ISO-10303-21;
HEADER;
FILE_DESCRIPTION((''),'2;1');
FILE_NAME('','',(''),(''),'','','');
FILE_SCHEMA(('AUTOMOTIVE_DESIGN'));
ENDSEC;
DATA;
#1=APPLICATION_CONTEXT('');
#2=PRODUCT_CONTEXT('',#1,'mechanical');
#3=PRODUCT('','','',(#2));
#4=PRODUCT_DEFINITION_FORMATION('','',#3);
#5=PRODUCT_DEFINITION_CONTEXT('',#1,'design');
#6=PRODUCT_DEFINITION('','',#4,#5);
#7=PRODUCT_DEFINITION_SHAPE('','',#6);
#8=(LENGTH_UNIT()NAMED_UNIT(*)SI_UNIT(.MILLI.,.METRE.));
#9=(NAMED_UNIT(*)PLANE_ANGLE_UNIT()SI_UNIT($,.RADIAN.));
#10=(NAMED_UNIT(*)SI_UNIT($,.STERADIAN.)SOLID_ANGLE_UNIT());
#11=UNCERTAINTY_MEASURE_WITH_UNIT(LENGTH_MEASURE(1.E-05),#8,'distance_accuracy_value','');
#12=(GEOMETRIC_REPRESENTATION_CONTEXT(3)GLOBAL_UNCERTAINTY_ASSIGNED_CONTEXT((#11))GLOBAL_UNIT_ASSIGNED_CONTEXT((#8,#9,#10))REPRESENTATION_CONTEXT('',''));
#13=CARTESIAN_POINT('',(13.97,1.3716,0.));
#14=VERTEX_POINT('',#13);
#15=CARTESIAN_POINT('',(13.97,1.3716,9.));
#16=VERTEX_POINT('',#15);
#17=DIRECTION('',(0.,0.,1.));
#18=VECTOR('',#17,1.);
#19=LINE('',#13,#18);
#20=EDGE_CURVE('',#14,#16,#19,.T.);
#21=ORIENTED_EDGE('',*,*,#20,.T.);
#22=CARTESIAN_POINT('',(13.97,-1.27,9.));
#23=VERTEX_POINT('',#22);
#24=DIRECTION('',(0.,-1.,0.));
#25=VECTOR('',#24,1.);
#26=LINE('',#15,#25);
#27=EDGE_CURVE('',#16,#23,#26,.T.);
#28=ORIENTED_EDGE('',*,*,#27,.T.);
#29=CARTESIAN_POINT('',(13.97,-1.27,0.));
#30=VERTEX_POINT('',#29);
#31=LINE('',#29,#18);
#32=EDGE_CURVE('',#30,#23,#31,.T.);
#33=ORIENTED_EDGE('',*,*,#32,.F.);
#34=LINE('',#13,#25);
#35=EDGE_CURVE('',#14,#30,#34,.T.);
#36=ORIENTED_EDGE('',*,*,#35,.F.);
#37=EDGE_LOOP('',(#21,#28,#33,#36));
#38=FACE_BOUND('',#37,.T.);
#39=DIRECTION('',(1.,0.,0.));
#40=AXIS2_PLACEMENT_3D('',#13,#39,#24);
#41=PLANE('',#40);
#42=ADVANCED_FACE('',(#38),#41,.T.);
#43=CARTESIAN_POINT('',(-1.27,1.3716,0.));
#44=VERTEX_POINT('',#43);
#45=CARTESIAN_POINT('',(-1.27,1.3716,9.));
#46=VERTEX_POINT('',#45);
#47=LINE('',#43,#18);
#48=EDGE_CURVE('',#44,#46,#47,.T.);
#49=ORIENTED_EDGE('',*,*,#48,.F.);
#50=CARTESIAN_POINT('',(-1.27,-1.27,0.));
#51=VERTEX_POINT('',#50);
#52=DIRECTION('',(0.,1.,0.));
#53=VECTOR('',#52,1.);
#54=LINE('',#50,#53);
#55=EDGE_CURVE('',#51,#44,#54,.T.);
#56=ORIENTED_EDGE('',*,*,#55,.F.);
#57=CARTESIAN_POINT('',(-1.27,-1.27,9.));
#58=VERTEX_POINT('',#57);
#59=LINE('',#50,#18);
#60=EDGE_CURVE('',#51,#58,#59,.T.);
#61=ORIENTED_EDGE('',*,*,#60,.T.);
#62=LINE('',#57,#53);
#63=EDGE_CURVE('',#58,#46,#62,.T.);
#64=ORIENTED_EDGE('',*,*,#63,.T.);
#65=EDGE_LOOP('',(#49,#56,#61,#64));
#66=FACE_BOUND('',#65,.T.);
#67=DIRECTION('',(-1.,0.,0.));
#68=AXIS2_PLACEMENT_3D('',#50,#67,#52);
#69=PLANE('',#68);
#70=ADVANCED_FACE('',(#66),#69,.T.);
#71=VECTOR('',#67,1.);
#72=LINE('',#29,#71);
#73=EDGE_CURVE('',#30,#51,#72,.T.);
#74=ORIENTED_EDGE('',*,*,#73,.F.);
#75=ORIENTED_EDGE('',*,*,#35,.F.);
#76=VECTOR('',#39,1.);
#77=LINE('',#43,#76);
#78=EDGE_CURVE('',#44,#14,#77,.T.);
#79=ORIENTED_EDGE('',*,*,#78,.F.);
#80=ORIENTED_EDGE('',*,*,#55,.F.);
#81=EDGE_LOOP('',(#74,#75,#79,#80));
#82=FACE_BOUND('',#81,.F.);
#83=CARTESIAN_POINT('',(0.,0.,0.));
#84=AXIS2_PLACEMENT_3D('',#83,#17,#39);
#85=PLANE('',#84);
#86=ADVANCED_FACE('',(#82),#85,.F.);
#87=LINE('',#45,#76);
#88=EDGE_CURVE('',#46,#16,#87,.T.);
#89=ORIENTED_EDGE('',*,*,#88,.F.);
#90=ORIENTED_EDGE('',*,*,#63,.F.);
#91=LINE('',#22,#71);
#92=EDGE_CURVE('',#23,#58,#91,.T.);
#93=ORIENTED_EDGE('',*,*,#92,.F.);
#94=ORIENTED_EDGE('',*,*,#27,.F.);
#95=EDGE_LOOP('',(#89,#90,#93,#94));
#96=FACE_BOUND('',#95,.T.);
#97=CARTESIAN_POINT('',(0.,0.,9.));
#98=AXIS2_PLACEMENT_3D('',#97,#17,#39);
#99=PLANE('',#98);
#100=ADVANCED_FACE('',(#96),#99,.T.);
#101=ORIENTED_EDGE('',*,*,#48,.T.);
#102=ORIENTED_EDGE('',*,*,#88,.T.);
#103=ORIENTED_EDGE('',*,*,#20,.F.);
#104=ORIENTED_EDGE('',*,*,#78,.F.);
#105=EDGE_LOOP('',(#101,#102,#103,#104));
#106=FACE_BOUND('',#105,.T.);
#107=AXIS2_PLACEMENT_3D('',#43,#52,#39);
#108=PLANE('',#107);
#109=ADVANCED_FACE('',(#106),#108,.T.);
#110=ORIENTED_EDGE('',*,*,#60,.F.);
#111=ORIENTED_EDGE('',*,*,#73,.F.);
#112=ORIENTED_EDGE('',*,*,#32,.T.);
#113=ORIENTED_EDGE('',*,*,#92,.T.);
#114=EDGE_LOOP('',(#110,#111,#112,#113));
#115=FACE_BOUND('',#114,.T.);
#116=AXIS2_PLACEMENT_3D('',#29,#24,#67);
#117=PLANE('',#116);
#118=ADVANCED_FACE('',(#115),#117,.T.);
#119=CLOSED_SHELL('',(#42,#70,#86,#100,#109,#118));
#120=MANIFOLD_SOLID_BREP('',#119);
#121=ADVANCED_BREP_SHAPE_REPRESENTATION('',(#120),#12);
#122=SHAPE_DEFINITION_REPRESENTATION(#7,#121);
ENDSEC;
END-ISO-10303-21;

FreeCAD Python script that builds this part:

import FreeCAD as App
import Part
import Sketcher
from FreeCAD import Vector
Q = App.Units.Quantity


def add_polygon(sketch, points):
    """Adds a closed chain of lines whose ends are joined by coincident constraints."""
    first, n = sketch.GeometryCount, len(points)
    for a, b in zip(points, points[1:] + points[:1]):
        sketch.addGeometry(Part.LineSegment(App.Vector(*a, 0), App.Vector(*b, 0)), False)
    for i in range(n):
        sketch.addConstraint(Sketcher.Constraint("Coincident", first + i, 2, first + (i + 1) % n, 1))

doc = App.newDocument("Part")
body = doc.addObject("PartDesign::Body", "Body")

sketch1 = body.newObject("Sketcher::SketchObject", "Sketch")
sketch1.AttachmentSupport = (doc.getObject("XY_Plane"), [""])
sketch1.MapMode = "FlatFace"
add_polygon(sketch1, [(14, 1.4), (-1.3, 1.4), (-1.3, -1.3), (14, -1.3)])
sketch1.addConstraint(Sketcher.Constraint("Horizontal", 0))
sketch1.addConstraint(Sketcher.Constraint("Vertical", 1))
sketch1.addConstraint(Sketcher.Constraint("Horizontal", 2))
sketch1.addConstraint(Sketcher.Constraint("Vertical", 3))
sketch1.addConstraint(Sketcher.Constraint("DistanceX", 0, 2, 0, 1, Q("0.6 in")))
sketch1.addConstraint(Sketcher.Constraint("DistanceY", 1, 2, 1, 1, Q("0.104 in")))
sketch1.addConstraint(Sketcher.Constraint("DistanceX", 0, 2, -1, 1, Q("0.05 in")))
sketch1.addConstraint(Sketcher.Constraint("DistanceY", 1, 2, -1, 1, Q("0.05 in")))
pad1 = body.newObject("PartDesign::Pad", "Pad")
pad1.Profile = sketch1
pad1.Length = 9

doc.recompute()
